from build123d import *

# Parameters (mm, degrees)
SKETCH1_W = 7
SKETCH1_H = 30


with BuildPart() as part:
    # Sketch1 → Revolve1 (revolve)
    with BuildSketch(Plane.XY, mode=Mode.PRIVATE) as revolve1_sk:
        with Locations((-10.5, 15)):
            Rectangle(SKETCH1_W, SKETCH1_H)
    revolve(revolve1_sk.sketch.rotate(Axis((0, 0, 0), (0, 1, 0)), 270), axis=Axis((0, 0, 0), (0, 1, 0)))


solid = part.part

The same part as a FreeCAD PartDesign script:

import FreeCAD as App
import Part
import Sketcher

V = App.Vector

doc = App.newDocument("Part")
body = doc.addObject("PartDesign::Body", "Body")

# Sketch on XY plane
sketch1 = doc.addObject("Sketcher::SketchObject", "Sketch")
body.addObject(sketch1)
sketch1.AttachmentSupport = (doc.XY_Plane, [""])
sketch1.MapMode = "FlatFace"
sketch1.addGeometry([
    Part.LineSegment(V(-14, 30, 0), V(-14, 0, 0)),
    Part.LineSegment(V(-14, 0, 0), V(-7, 0, 0)),
    Part.LineSegment(V(-7, 0, 0), V(-7, 30, 0)),
    Part.LineSegment(V(-7, 30, 0), V(-14, 30, 0)),
], False)
sketch1.addConstraint([
    Sketcher.Constraint("Coincident", 0, 2, 1, 1),
    Sketcher.Constraint("Coincident", 1, 2, 2, 1),
    Sketcher.Constraint("Coincident", 2, 2, 3, 1),
    Sketcher.Constraint("Coincident", 3, 2, 0, 1),
    Sketcher.Constraint("Vertical", 0),
    Sketcher.Constraint("Horizontal", 1),
    Sketcher.Constraint("Vertical", 2),
    Sketcher.Constraint("Horizontal", 3),
    Sketcher.Constraint("PointOnObject", 0, 2, -1),
    Sketcher.Constraint("DistanceX", 1, 1, 1, 2, 7.0),
    Sketcher.Constraint("DistanceY", 0, 2, 0, 1, 30.0),
    Sketcher.Constraint("DistanceX", 0, 2, -1, 1, 14.0),
])
revolution = doc.addObject("PartDesign::Revolution", "Revolution")
body.addObject(revolution)
revolution.Profile = sketch1
revolution.ReferenceAxis = (sketch1, ["V_Axis"])
revolution.Angle = 360

doc.recompute()
